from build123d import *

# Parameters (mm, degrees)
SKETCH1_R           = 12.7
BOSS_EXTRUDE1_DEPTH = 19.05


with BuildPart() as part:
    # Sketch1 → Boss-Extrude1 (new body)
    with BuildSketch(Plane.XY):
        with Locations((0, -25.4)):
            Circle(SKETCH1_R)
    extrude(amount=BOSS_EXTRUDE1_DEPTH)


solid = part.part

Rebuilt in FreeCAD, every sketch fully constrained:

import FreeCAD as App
import Part
import Sketcher

V = App.Vector
Q = App.Units.Quantity

doc = App.newDocument("Part")
params = doc.addObject("Spreadsheet::Sheet", "Params")
for row, (alias, value) in enumerate([
    ("sketch1_diameter", "1 in"),
    ("pad1_length", "0.75 in"),
], start=1):
    params.set(f"A{row}", alias)
    params.set(f"B{row}", "=" + value)
    params.setAlias(f"B{row}", alias)

body = doc.addObject("PartDesign::Body", "Body")

# Sketch on XY plane
sketch1 = body.newObject("Sketcher::SketchObject", "Sketch")
sketch1.AttachmentSupport = (doc.getObject("XY_Plane"), [""])
sketch1.MapMode = "FlatFace"
sketch1.addGeometry(Part.Circle(V(0, -25, 0), V(0, 0, 1), 13), False)
sketch1.addConstraint(Sketcher.Constraint("PointOnObject", 0, 3, -2))
sketch1.addConstraint(Sketcher.Constraint("Diameter", 0, Q("1 in")))
sketch1.addConstraint(Sketcher.Constraint("DistanceY", 0, 3, -1, 1, Q("1 in")))
sketch1.setExpression("Constraints[1]", "Params.sketch1_diameter")
pad1 = body.newObject("PartDesign::Pad", "Pad")
pad1.Profile = sketch1
pad1.setExpression("Length", "Params.pad1_length")

doc.recompute()
